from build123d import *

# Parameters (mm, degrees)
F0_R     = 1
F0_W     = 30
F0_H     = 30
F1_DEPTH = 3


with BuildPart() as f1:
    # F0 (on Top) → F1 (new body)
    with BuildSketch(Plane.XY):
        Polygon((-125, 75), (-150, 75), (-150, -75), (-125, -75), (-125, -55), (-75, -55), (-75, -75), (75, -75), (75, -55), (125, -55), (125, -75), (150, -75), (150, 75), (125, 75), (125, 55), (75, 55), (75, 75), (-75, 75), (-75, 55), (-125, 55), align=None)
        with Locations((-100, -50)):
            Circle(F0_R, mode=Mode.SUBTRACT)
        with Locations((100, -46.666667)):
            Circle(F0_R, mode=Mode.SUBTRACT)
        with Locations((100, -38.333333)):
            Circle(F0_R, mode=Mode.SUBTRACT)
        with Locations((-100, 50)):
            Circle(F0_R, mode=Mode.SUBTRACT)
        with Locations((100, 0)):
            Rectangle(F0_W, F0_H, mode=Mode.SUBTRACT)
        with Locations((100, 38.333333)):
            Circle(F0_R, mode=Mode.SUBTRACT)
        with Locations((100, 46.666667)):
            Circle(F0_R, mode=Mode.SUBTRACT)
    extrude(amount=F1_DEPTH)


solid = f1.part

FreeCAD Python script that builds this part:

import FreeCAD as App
import Part
import Sketcher

V = App.Vector


def add_polygon(sketch, points):
    """Adds a closed chain of lines whose ends are joined by coincident constraints."""
    first, n = sketch.GeometryCount, len(points)
    for a, b in zip(points, points[1:] + points[:1]):
        sketch.addGeometry(Part.LineSegment(App.Vector(*a, 0), App.Vector(*b, 0)), False)
    for i in range(n):
        sketch.addConstraint(Sketcher.Constraint("Coincident", first + i, 2, first + (i + 1) % n, 1))

doc = App.newDocument("Part")
params = doc.addObject("Spreadsheet::Sheet", "Params")
for row, (alias, value) in enumerate([
    ("sketch1_diameter", "2 mm"),
    ("sketch1_width", "25 mm"),
    ("sketch1_width2", "50 mm"),
    ("sketch1_width3", "150 mm"),
    ("sketch1_width4", "30 mm"),
    ("pad1_length", "3 mm"),
], start=1):
    params.set(f"A{row}", alias)
    params.set(f"B{row}", "=" + value)
    params.setAlias(f"B{row}", alias)

body = doc.addObject("PartDesign::Body", "Body")

sketch1 = body.newObject("Sketcher::SketchObject", "Sketch")
sketch1.AttachmentSupport = (doc.getObject("XY_Plane"), [""])
sketch1.MapMode = "FlatFace"
add_polygon(sketch1, [(-125, 75), (-150, 75), (-150, -75), (-125, -75), (-125, -55), (-75, -55), (-75, -75), (75, -75), (75, -55), (125, -55), (125, -75), (150, -75), (150, 75), (125, 75), (125, 55), (75, 55), (75, 75), (-75, 75), (-75, 55), (-125, 55)])
sketch1.addGeometry(Part.Circle(V(-100, -50, 0), V(0, 0, 1), 1), False)
sketch1.addGeometry(Part.Circle(V(100, -46.666667, 0), V(0, 0, 1), 1), False)
sketch1.addGeometry(Part.Circle(V(100, -38.333333, 0), V(0, 0, 1), 1), False)
sketch1.addGeometry(Part.Circle(V(-100, 50, 0), V(0, 0, 1), 1), False)
add_polygon(sketch1, [(115, -15), (85, -15), (85, 15), (115, 15)])
sketch1.addGeometry(Part.Circle(V(100, 38.333333, 0), V(0, 0, 1), 1), False)
sketch1.addGeometry(Part.Circle(V(100, 46.666667, 0), V(0, 0, 1), 1), False)
sketch1.addConstraint([
    Sketcher.Constraint("Horizontal", 0),
    Sketcher.Constraint("Vertical", 1),
    Sketcher.Constraint("Horizontal", 2),
    Sketcher.Constraint("Vertical", 3),
    Sketcher.Constraint("Horizontal", 4),
    Sketcher.Constraint("Vertical", 5),
    Sketcher.Constraint("Horizontal", 6),
    Sketcher.Constraint("Vertical", 7),
    Sketcher.Constraint("Horizontal", 8),
    Sketcher.Constraint("Vertical", 9),
    Sketcher.Constraint("Horizontal", 10),
    Sketcher.Constraint("Vertical", 11),
    Sketcher.Constraint("Horizontal", 12),
    Sketcher.Constraint("Vertical", 13),
    Sketcher.Constraint("Horizontal", 14),
    Sketcher.Constraint("Vertical", 15),
    Sketcher.Constraint("Horizontal", 16),
    Sketcher.Constraint("Vertical", 17),
    Sketcher.Constraint("Horizontal", 18),
    Sketcher.Constraint("Vertical", 19),
    Sketcher.Constraint("Horizontal", 24),
    Sketcher.Constraint("Vertical", 25),
    Sketcher.Constraint("Horizontal", 26),
    Sketcher.Constraint("Vertical", 27),
    Sketcher.Constraint("Equal", 20, 21),
    Sketcher.Constraint("Equal", 21, 22),
    Sketcher.Constraint("Equal", 22, 23),
    Sketcher.Constraint("Equal", 23, 28),
    Sketcher.Constraint("Equal", 28, 29),
    Sketcher.Constraint("Symmetric", 0, 2, 10, 2, -1, 1),
    Sketcher.Constraint("Symmetric", 2, 2, 12, 2, -1, 1),
    Sketcher.Constraint("Symmetric", 4, 2, 14, 2, -1, 1),
    Sketcher.Constraint("Symmetric", 6, 2, 16, 2, -1, 1),
    Sketcher.Constraint("Symmetric", 8, 2, 18, 2, -1, 1),
    Sketcher.Constraint("Symmetric", 4, 2, 7, 2, -2),
    Sketcher.Constraint("Symmetric", 2, 2, 9, 2, -2),
    Sketcher.Constraint("Symmetric", 20, 3, 23, 3, -1),
    Sketcher.Constraint("Symmetric", 22, 3, 28, 3, -1),
    Sketcher.Constraint("Symmetric", 21, 3, 29, 3, -1),
    Sketcher.Constraint("Horizontal", 2, 2, 5, 2),
    Sketcher.Constraint("Vertical", 21, 3, 22, 3),
    Sketcher.Constraint("Equal", 16, 1),
    Sketcher.Constraint("Equal", 26, 25),
    Sketcher.Constraint("Diameter", 20, 2.0),
    Sketcher.Constraint("DistanceX", 0, 2, 0, 1, 25.0),
    Sketcher.Constraint("DistanceX", 4, 1, 4, 2, 50.0),
    Sketcher.Constraint("DistanceX", 6, 1, 6, 2, 150.0),
    Sketcher.Constraint("DistanceX", 24, 2, 24, 1, 30.0),
    Sketcher.Constraint("DistanceY", 3, 1, 3, 2, 20.0),
    Sketcher.Constraint("DistanceX", 20, 3, -1, 1, 100.0),
    Sketcher.Constraint("DistanceY", 20, 3, -1, 1, 50.0),
    Sketcher.Constraint("DistanceX", -1, 1, 21, 3, 100.0),
    Sketcher.Constraint("DistanceX", -1, 1, 24, 2, 85.0),
    Sketcher.Constraint("DistanceY", 24, 2, -1, 1, 15.0),
    Sketcher.Constraint("DistanceY", 21, 3, 28, 3, 85.0),
    Sketcher.Constraint("DistanceY", 21, 3, -1, 1, 46.666667),
])
sketch1.setExpression("Constraints[67]", "Params.sketch1_diameter")
sketch1.setExpression("Constraints[68]", "Params.sketch1_width")
sketch1.setExpression("Constraints[69]", "Params.sketch1_width2")
sketch1.setExpression("Constraints[70]", "Params.sketch1_width3")
sketch1.setExpression("Constraints[71]", "Params.sketch1_width4")
pad1 = body.newObject("PartDesign::Pad", "Pad")
pad1.Profile = sketch1
pad1.setExpression("Length", "Params.pad1_length")

doc.recompute()
